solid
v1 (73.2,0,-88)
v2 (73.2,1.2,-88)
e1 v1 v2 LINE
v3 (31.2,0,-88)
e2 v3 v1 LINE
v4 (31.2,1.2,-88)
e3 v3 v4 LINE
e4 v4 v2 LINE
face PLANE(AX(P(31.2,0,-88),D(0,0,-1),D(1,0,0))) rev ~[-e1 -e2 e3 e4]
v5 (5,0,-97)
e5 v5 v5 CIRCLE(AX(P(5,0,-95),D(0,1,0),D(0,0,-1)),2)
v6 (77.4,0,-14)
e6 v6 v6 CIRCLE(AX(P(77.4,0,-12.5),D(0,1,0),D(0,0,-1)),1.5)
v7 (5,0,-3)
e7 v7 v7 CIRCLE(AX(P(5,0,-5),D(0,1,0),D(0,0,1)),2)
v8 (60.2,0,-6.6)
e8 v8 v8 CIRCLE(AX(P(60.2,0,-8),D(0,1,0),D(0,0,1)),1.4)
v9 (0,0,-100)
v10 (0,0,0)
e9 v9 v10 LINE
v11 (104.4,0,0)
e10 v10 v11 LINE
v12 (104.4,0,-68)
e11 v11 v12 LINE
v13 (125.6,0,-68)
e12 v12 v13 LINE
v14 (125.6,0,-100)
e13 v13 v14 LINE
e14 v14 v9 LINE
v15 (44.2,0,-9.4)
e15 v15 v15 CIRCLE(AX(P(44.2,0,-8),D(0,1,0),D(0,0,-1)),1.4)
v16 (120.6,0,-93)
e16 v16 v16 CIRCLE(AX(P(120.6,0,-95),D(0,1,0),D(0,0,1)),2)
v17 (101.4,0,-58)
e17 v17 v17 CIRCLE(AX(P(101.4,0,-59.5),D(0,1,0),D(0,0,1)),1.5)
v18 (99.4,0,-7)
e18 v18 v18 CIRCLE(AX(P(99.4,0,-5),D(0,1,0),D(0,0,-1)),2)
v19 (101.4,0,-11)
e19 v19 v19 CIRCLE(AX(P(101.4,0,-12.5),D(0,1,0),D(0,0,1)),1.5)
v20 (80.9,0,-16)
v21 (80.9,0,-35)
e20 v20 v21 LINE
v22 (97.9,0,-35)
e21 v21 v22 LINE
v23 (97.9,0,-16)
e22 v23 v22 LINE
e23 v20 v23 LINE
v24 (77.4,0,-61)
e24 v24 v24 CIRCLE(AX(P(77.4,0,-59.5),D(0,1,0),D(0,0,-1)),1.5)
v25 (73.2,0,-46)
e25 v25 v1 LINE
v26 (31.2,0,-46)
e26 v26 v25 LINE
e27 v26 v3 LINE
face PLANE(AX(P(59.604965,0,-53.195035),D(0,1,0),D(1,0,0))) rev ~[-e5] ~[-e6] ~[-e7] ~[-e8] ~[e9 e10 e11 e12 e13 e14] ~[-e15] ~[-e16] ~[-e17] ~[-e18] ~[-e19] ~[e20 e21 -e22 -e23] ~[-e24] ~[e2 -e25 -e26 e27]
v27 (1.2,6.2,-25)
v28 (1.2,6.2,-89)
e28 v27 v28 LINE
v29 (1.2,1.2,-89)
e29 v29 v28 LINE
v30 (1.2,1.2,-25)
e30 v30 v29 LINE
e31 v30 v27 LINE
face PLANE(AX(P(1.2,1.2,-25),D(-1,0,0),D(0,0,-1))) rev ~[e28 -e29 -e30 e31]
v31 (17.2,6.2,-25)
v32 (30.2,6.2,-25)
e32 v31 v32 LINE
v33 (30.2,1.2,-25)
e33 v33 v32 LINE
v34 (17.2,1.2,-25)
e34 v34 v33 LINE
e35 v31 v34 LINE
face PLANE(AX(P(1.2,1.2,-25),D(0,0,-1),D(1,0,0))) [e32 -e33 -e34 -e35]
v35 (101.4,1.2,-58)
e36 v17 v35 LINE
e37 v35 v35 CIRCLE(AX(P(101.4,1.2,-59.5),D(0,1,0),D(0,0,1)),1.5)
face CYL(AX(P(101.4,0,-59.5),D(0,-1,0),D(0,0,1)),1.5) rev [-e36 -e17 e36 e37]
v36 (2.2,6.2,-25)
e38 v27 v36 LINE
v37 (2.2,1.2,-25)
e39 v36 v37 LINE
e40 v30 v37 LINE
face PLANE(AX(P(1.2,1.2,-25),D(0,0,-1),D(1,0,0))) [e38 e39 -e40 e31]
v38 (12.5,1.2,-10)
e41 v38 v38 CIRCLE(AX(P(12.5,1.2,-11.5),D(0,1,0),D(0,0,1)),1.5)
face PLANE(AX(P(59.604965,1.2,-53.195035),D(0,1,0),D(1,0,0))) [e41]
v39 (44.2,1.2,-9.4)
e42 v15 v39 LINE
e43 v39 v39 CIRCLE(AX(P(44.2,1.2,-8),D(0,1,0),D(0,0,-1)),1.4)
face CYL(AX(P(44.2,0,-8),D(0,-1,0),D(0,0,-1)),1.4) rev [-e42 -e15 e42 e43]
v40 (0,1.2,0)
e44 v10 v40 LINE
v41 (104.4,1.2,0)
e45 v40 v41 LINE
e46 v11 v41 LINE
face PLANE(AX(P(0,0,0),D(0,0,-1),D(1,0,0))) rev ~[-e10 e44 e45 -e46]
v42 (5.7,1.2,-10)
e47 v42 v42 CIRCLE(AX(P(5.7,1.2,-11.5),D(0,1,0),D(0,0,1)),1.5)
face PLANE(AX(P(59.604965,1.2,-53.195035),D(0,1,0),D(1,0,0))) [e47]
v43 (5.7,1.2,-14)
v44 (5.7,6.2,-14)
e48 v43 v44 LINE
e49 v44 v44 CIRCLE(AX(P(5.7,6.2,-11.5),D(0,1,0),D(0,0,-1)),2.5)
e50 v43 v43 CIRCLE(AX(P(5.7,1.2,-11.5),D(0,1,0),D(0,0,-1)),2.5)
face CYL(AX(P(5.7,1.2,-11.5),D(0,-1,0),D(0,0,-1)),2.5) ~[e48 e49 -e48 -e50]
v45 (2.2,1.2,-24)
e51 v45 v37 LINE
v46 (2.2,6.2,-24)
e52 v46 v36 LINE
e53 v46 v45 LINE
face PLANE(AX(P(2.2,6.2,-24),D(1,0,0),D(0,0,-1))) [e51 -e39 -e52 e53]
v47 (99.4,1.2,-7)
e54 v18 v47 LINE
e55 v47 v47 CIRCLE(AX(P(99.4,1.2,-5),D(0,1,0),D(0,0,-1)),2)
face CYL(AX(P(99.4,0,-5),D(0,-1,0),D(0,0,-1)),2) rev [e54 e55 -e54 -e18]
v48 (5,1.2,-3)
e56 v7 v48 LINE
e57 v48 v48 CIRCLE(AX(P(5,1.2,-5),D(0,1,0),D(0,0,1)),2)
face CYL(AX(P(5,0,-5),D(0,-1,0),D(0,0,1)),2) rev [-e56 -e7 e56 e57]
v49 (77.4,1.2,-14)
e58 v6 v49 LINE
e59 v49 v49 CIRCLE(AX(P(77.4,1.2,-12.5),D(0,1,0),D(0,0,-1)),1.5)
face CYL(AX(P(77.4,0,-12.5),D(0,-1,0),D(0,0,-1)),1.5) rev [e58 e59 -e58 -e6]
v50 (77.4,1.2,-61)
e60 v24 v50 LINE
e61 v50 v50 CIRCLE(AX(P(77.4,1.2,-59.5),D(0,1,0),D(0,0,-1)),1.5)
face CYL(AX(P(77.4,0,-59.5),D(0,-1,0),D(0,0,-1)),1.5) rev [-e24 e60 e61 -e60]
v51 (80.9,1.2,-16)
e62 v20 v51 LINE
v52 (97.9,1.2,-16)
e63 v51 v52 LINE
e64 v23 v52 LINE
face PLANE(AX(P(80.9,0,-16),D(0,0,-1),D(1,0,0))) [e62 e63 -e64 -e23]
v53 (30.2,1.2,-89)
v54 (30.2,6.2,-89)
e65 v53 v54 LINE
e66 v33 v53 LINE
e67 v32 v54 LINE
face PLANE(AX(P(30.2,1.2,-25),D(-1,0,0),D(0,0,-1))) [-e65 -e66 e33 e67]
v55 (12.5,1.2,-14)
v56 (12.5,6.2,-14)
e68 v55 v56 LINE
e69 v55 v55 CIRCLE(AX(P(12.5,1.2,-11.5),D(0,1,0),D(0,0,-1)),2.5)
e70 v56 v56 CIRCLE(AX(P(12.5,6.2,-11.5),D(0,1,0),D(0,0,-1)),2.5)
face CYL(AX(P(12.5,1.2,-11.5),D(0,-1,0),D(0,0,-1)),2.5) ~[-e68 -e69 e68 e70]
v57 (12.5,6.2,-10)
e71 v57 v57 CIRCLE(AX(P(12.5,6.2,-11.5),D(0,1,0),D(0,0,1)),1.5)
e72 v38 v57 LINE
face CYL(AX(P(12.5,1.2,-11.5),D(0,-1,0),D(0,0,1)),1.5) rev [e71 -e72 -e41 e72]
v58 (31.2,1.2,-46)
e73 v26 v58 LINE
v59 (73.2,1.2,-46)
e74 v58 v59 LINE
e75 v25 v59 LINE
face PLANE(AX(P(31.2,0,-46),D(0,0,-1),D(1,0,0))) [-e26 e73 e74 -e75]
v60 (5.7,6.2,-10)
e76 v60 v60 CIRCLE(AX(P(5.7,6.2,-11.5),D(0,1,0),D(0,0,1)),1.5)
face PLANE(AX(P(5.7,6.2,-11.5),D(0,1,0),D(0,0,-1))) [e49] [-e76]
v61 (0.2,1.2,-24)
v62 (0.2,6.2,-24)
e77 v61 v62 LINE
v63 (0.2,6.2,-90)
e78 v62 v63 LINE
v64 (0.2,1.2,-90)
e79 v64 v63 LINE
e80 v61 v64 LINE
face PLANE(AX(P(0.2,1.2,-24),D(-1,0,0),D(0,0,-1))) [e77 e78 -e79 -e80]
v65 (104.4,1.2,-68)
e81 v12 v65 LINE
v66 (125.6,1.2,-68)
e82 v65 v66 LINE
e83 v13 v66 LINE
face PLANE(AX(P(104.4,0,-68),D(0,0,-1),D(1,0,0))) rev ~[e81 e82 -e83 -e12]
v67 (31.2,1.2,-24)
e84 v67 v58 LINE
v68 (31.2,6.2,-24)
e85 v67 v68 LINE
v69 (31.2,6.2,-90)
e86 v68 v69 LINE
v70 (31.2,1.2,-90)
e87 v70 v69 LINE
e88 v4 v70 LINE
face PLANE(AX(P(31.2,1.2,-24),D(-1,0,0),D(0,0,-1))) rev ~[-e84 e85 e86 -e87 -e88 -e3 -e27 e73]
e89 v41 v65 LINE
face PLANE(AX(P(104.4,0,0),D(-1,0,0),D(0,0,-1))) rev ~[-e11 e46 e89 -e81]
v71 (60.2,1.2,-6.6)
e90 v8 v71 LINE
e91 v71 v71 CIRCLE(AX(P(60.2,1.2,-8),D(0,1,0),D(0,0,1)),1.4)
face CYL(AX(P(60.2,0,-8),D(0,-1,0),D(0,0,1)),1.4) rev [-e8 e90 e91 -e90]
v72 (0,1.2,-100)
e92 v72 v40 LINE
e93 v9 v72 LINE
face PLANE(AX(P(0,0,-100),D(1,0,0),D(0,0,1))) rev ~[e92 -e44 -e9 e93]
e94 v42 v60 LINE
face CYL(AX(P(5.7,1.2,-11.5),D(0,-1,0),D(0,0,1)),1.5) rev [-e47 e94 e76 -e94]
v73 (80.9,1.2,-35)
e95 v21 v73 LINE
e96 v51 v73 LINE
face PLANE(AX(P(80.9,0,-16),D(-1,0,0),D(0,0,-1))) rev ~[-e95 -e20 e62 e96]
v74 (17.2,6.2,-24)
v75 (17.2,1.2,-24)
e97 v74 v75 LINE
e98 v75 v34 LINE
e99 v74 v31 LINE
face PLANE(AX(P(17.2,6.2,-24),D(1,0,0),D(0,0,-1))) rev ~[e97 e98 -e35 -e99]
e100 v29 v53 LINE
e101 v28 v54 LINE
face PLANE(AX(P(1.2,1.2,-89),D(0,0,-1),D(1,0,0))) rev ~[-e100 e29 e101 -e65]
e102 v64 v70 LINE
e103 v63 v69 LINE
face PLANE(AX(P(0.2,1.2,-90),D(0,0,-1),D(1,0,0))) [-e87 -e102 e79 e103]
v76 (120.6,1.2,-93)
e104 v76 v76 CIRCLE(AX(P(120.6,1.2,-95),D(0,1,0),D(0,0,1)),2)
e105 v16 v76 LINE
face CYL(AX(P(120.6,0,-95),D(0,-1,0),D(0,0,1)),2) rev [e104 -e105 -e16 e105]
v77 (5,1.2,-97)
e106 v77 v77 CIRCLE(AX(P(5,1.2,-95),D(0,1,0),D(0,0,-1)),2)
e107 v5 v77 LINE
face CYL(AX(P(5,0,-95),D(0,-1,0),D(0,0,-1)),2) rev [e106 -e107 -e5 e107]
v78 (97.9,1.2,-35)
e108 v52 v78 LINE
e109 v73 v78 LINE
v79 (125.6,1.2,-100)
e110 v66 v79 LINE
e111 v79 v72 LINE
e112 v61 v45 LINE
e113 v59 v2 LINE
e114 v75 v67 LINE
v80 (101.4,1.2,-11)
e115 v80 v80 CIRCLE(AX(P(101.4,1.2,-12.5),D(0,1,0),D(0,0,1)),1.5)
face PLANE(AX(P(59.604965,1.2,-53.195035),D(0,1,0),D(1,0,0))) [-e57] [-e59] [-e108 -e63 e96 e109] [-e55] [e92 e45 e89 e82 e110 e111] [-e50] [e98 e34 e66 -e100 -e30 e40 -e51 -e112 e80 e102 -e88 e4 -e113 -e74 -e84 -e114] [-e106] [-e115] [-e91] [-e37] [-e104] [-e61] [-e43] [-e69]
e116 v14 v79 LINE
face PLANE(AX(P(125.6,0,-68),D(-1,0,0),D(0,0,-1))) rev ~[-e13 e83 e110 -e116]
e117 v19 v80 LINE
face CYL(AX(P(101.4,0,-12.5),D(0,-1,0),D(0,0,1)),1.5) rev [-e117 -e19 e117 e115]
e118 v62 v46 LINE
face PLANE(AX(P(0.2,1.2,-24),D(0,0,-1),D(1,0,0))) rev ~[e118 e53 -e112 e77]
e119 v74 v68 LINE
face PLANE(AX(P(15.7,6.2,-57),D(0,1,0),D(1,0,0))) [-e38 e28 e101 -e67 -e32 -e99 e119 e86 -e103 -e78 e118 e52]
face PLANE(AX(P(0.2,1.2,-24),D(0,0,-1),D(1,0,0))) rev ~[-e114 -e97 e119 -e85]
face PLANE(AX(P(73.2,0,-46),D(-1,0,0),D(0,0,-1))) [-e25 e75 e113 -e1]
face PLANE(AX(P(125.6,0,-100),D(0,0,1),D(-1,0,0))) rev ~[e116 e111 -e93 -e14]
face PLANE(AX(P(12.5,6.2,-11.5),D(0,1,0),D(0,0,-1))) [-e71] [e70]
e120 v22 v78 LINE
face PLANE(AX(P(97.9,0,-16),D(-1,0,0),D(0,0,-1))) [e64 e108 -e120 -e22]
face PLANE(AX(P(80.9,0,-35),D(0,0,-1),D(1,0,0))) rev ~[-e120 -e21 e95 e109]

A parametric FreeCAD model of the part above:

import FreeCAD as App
import Part
import Sketcher

V = App.Vector
Q = App.Units.Quantity

doc = App.newDocument("Part")
body = doc.addObject("PartDesign::Body", "Body")

# Sketch on XZ plane
sketch1 = body.newObject("Sketcher::SketchObject", "Sketch")
sketch1.AttachmentSupport = (doc.getObject("XZ_Plane"), [""])
sketch1.MapMode = "FlatFace"
sketch1.addGeometry([
    Part.LineSegment(V(104.4, -68, 0), V(125.6, -68, 0)),  # 0
    Part.LineSegment(V(125.6, -68, 0), V(125.6, -100, 0)),  # 1
    Part.LineSegment(V(125.6, -100, 0), V(0, -100, 0)),  # 2
    Part.LineSegment(V(0, -100, 0), V(0, 0, 0)),  # 3
    Part.LineSegment(V(0, 0, 0), V(104.4, 0, 0)),  # 4
    Part.LineSegment(V(104.4, 0, 0), V(104.4, -68, 0)),  # 5
    Part.Circle(V(5, -5, 0), V(0, 0, 1), 2),  # 6
    Part.Circle(V(44.2, -8, 0), V(0, 0, 1), 1.4),  # 7
    Part.Circle(V(60.2, -8, 0), V(0, 0, 1), 1.4),  # 8
    Part.Circle(V(77.4, -12.5, 0), V(0, 0, 1), 1.5),  # 9
    Part.LineSegment(V(97.9, -16, 0), V(80.9, -16, 0)),  # 10
    Part.LineSegment(V(80.9, -16, 0), V(80.9, -35, 0)),  # 11
    Part.LineSegment(V(80.9, -35, 0), V(97.9, -35, 0)),  # 12
    Part.LineSegment(V(97.9, -35, 0), V(97.9, -16, 0)),  # 13
    Part.Circle(V(99.4, -5, 0), V(0, 0, 1), 2),  # 14
    Part.Circle(V(101.4, -12.5, 0), V(0, 0, 1), 1.5),  # 15
    Part.LineSegment(V(73.2, -46, 0), V(31.2, -46, 0)),  # 16
    Part.LineSegment(V(31.2, -46, 0), V(31.2, -88, 0)),  # 17
    Part.LineSegment(V(31.2, -88, 0), V(73.2, -88, 0)),  # 18
    Part.LineSegment(V(73.2, -88, 0), V(73.2, -46, 0)),  # 19
    Part.Circle(V(5, -95, 0), V(0, 0, 1), 2),  # 20
    Part.Circle(V(77.4, -59.5, 0), V(0, 0, 1), 1.5),  # 21
    Part.Circle(V(101.4, -59.5, 0), V(0, 0, 1), 1.5),  # 22
    Part.Circle(V(120.6, -95, 0), V(0, 0, 1), 2),  # 23
], False)
sketch1.addConstraint([
    Sketcher.Constraint("Coincident", 0, 2, 1, 1),
    Sketcher.Constraint("Coincident", 1, 2, 2, 1),
    Sketcher.Constraint("Coincident", 2, 2, 3, 1),
    Sketcher.Constraint("Coincident", 3, 2, 4, 1),
    Sketcher.Constraint("Coincident", 4, 2, 5, 1),
    Sketcher.Constraint("Coincident", 5, 2, 0, 1),
    Sketcher.Constraint("Coincident", 10, 2, 11, 1),
    Sketcher.Constraint("Coincident", 11, 2, 12, 1),
    Sketcher.Constraint("Coincident", 12, 2, 13, 1),
    Sketcher.Constraint("Coincident", 13, 2, 10, 1),
    Sketcher.Constraint("Coincident", 16, 2, 17, 1),
    Sketcher.Constraint("Coincident", 17, 2, 18, 1),
    Sketcher.Constraint("Coincident", 18, 2, 19, 1),
    Sketcher.Constraint("Coincident", 19, 2, 16, 1),
    Sketcher.Constraint("Horizontal", 0),
    Sketcher.Constraint("Vertical", 1),
    Sketcher.Constraint("Horizontal", 2),
    Sketcher.Constraint("Vertical", 3),
    Sketcher.Constraint("Horizontal", 4),
    Sketcher.Constraint("Vertical", 5),
    Sketcher.Constraint("Horizontal", 10),
    Sketcher.Constraint("Vertical", 11),
    Sketcher.Constraint("Horizontal", 12),
    Sketcher.Constraint("Vertical", 13),
    Sketcher.Constraint("Horizontal", 16),
    Sketcher.Constraint("Vertical", 17),
    Sketcher.Constraint("Horizontal", 18),
    Sketcher.Constraint("Vertical", 19),
    Sketcher.Constraint("Coincident", 3, 2, -1, 1),
    Sketcher.Constraint("Equal", 7, 8),
    Sketcher.Constraint("Equal", 6, 14),
    Sketcher.Constraint("Equal", 9, 15),
    Sketcher.Constraint("Equal", 14, 20),
    Sketcher.Constraint("Equal", 15, 21),
    Sketcher.Constraint("Equal", 21, 22),
    Sketcher.Constraint("Equal", 20, 23),
    Sketcher.Constraint("Horizontal", 7, 3, 8, 3),
    Sketcher.Constraint("Horizontal", 6, 3, 14, 3),
    Sketcher.Constraint("Horizontal", 9, 3, 15, 3),
    Sketcher.Constraint("Horizontal", 21, 3, 22, 3),
    Sketcher.Constraint("Horizontal", 20, 3, 23, 3),
    Sketcher.Constraint("Vertical", 6, 3, 20, 3),
    Sketcher.Constraint("Vertical", 9, 3, 21, 3),
    Sketcher.Constraint("Vertical", 15, 3, 22, 3),
    Sketcher.Constraint("Equal", 18, 17),
    Sketcher.Constraint("Diameter", 6, Q("4 mm")),
    Sketcher.Constraint("Diameter", 9, Q("3 mm")),
    Sketcher.Constraint("Diameter", 7, Q("2.8 mm")),
    Sketcher.Constraint("DistanceX", 10, 2, 10, 1, Q("17 mm")),
    Sketcher.Constraint("DistanceX", 16, 2, 16, 1, Q("42 mm")),
    Sketcher.Constraint("DistanceY", 1, 2, 1, 1, Q("32 mm")),
    Sketcher.Constraint("DistanceY", 3, 1, 3, 2, Q("100 mm")),
    Sketcher.Constraint("DistanceY", 11, 2, 11, 1, Q("19 mm")),
    Sketcher.Constraint("DistanceX", 0, 1, 0, 2, Q("21.2 mm")),
    Sketcher.Constraint("DistanceX", 2, 2, 2, 1, Q("125.6 mm")),
    Sketcher.Constraint("DistanceX", -1, 1, 6, 3, Q("5 mm")),
    Sketcher.Constraint("DistanceY", 6, 3, -1, 1, Q("5 mm")),
    Sketcher.Constraint("DistanceY", 7, 3, -1, 1, Q("8 mm")),
    Sketcher.Constraint("DistanceY", 20, 3, -1, 1, Q("95 mm")),
    Sketcher.Constraint("DistanceY", 10, 2, -1, 1, Q("16 mm")),
    Sketcher.Constraint("DistanceY", 16, 2, -1, 1, Q("46 mm")),
    Sketcher.Constraint("DistanceX", 7, 3, 8, 3, Q("16 mm")),
    Sketcher.Constraint("DistanceX", 9, 3, 14, 3, Q("22 mm")),
    Sketcher.Constraint("DistanceX", 14, 3, 15, 3, Q("2 mm")),
    Sketcher.Constraint("DistanceY", 21, 3, 9, 3, Q("47 mm")),
    Sketcher.Constraint("DistanceX", 23, 3, 0, 2, Q("5 mm")),
    Sketcher.Constraint("DistanceX", 14, 3, 4, 2, Q("5 mm")),
    Sketcher.Constraint("DistanceX", 16, 2, 7, 3, Q("13 mm")),
    Sketcher.Constraint("DistanceX", -1, 1, 7, 3, Q("44.2 mm")),
    Sketcher.Constraint("DistanceY", 9, 3, -1, 1, Q("12.5 mm")),
    Sketcher.Constraint("DistanceX", -1, 1, 10, 2, Q("80.9 mm")),
])
pad1 = body.newObject("PartDesign::Pad", "Pad")
pad1.Profile = sketch1
pad1.Length = 1.2
pad1.Reversed = True

# Sketch on XZ plane
sketch2 = body.newObject("Sketcher::SketchObject", "Sketch001")
sketch2.AttachmentSupport = (doc.getObject("XZ_Plane"), [""])
sketch2.MapMode = "FlatFace"
sketch2.AttachmentOffset = App.Placement(V(0, 0, -1.2), App.Rotation())
sketch2.addGeometry([
    Part.Circle(V(12.5, -11.5, 0), V(0, 0, 1), 2.5),  # 0
    Part.Circle(V(12.5, -11.5, 0), V(0, 0, 1), 1.5),  # 1
    Part.Circle(V(5.7, -11.5, 0), V(0, 0, 1), 2.5),  # 2
    Part.Circle(V(5.7, -11.5, 0), V(0, 0, 1), 1.5),  # 3
    Part.LineSegment(V(0.2, -90, 0), V(0.2, -24, 0)),  # 4
    Part.LineSegment(V(0.2, -24, 0), V(31.2, -24, 0)),  # 5
    Part.LineSegment(V(31.2, -24, 0), V(31.2, -90, 0)),  # 6
    Part.LineSegment(V(31.2, -90, 0), V(0.2, -90, 0)),  # 7
    Part.LineSegment(V(30.2, -25, 0), V(1.2, -25, 0)),  # 8
    Part.LineSegment(V(1.2, -25, 0), V(1.2, -89, 0)),  # 9
    Part.LineSegment(V(1.2, -89, 0), V(30.2, -89, 0)),  # 10
    Part.LineSegment(V(30.2, -89, 0), V(30.2, -25, 0)),  # 11
], False)
sketch2.addConstraint([
    Sketcher.Constraint("Coincident", 4, 2, 5, 1),
    Sketcher.Constraint("Coincident", 5, 2, 6, 1),
    Sketcher.Constraint("Coincident", 6, 2, 7, 1),
    Sketcher.Constraint("Coincident", 7, 2, 4, 1),
    Sketcher.Constraint("Coincident", 8, 2, 9, 1),
    Sketcher.Constraint("Coincident", 9, 2, 10, 1),
    Sketcher.Constraint("Coincident", 10, 2, 11, 1),
    Sketcher.Constraint("Coincident", 11, 2, 8, 1),
    Sketcher.Constraint("Vertical", 4),
    Sketcher.Constraint("Horizontal", 5),
    Sketcher.Constraint("Vertical", 6),
    Sketcher.Constraint("Horizontal", 7),
    Sketcher.Constraint("Horizontal", 8),
    Sketcher.Constraint("Vertical", 9),
    Sketcher.Constraint("Horizontal", 10),
    Sketcher.Constraint("Vertical", 11),
    Sketcher.Constraint("Coincident", 1, 3, 0, 3),
    Sketcher.Constraint("Coincident", 3, 3, 2, 3),
    Sketcher.Constraint("Equal", 0, 2),
    Sketcher.Constraint("Equal", 1, 3),
    Sketcher.Constraint("Horizontal", 1, 3, 2, 3),
    Sketcher.Constraint("Diameter", 0, Q("5 mm")),
    Sketcher.Constraint("Diameter", 1, Q("3 mm")),
    Sketcher.Constraint("DistanceX", 5, 1, 5, 2, Q("31 mm")),
    Sketcher.Constraint("DistanceX", 8, 2, 8, 1, Q("29 mm")),
    Sketcher.Constraint("DistanceY", 4, 1, 4, 2, Q("66 mm")),
    Sketcher.Constraint("DistanceY", 9, 2, 9, 1, Q("64 mm")),
    Sketcher.Constraint("DistanceY", 4, 2, -1, 1, Q("24 mm")),
    Sketcher.Constraint("DistanceY", 8, 2, -1, 1, Q("25 mm")),
    Sketcher.Constraint("DistanceX", 4, 2, 8, 2, Q("1 mm")),
    Sketcher.Constraint("DistanceX", -1, 1, 0, 3, Q("12.5 mm")),
    Sketcher.Constraint("DistanceY", 0, 3, -1, 1, Q("11.5 mm")),
    Sketcher.Constraint("DistanceX", -1, 1, 2, 3, Q("5.7 mm")),
    Sketcher.Constraint("DistanceX", -1, 1, 4, 2, Q("0.2 mm")),
])
pad2 = body.newObject("PartDesign::Pad", "Pad001")
pad2.Profile = sketch2
pad2.Length = 5
pad2.Reversed = True

# Sketch on XZ plane
sketch3 = body.newObject("Sketcher::SketchObject", "Sketch002")
sketch3.AttachmentSupport = (doc.getObject("XZ_Plane"), [""])
sketch3.MapMode = "FlatFace"
sketch3.AttachmentOffset = App.Placement(V(0, 0, -6.2), App.Rotation())
sketch3.addGeometry([
    Part.LineSegment(V(2.2, -27, 0), V(2.2, -24, 0)),
    Part.LineSegment(V(2.2, -24, 0), V(17.2, -24, 0)),
    Part.LineSegment(V(17.2, -24, 0), V(17.2, -27, 0)),
    Part.LineSegment(V(17.2, -27, 0), V(2.2, -27, 0)),
], False)
sketch3.addConstraint([
    Sketcher.Constraint("Coincident", 0, 2, 1, 1),
    Sketcher.Constraint("Coincident", 1, 2, 2, 1),
    Sketcher.Constraint("Coincident", 2, 2, 3, 1),
    Sketcher.Constraint("Coincident", 3, 2, 0, 1),
    Sketcher.Constraint("Vertical", 0),
    Sketcher.Constraint("Horizontal", 1),
    Sketcher.Constraint("Vertical", 2),
    Sketcher.Constraint("Horizontal", 3),
    Sketcher.Constraint("DistanceX", 1, 1, 1, 2, Q("15 mm")),
    Sketcher.Constraint("DistanceY", 0, 1, 0, 2, Q("3 mm")),
    Sketcher.Constraint("DistanceY", 0, 2, -1, 1, Q("24 mm")),
    Sketcher.Constraint("DistanceX", -1, 1, 0, 2, Q("2.2 mm")),
])
pocket1 = body.newObject("PartDesign::Pocket", "Pocket")
pocket1.Profile = sketch3
pocket1.Length = 5
pocket1.Reversed = True

doc.recompute()
